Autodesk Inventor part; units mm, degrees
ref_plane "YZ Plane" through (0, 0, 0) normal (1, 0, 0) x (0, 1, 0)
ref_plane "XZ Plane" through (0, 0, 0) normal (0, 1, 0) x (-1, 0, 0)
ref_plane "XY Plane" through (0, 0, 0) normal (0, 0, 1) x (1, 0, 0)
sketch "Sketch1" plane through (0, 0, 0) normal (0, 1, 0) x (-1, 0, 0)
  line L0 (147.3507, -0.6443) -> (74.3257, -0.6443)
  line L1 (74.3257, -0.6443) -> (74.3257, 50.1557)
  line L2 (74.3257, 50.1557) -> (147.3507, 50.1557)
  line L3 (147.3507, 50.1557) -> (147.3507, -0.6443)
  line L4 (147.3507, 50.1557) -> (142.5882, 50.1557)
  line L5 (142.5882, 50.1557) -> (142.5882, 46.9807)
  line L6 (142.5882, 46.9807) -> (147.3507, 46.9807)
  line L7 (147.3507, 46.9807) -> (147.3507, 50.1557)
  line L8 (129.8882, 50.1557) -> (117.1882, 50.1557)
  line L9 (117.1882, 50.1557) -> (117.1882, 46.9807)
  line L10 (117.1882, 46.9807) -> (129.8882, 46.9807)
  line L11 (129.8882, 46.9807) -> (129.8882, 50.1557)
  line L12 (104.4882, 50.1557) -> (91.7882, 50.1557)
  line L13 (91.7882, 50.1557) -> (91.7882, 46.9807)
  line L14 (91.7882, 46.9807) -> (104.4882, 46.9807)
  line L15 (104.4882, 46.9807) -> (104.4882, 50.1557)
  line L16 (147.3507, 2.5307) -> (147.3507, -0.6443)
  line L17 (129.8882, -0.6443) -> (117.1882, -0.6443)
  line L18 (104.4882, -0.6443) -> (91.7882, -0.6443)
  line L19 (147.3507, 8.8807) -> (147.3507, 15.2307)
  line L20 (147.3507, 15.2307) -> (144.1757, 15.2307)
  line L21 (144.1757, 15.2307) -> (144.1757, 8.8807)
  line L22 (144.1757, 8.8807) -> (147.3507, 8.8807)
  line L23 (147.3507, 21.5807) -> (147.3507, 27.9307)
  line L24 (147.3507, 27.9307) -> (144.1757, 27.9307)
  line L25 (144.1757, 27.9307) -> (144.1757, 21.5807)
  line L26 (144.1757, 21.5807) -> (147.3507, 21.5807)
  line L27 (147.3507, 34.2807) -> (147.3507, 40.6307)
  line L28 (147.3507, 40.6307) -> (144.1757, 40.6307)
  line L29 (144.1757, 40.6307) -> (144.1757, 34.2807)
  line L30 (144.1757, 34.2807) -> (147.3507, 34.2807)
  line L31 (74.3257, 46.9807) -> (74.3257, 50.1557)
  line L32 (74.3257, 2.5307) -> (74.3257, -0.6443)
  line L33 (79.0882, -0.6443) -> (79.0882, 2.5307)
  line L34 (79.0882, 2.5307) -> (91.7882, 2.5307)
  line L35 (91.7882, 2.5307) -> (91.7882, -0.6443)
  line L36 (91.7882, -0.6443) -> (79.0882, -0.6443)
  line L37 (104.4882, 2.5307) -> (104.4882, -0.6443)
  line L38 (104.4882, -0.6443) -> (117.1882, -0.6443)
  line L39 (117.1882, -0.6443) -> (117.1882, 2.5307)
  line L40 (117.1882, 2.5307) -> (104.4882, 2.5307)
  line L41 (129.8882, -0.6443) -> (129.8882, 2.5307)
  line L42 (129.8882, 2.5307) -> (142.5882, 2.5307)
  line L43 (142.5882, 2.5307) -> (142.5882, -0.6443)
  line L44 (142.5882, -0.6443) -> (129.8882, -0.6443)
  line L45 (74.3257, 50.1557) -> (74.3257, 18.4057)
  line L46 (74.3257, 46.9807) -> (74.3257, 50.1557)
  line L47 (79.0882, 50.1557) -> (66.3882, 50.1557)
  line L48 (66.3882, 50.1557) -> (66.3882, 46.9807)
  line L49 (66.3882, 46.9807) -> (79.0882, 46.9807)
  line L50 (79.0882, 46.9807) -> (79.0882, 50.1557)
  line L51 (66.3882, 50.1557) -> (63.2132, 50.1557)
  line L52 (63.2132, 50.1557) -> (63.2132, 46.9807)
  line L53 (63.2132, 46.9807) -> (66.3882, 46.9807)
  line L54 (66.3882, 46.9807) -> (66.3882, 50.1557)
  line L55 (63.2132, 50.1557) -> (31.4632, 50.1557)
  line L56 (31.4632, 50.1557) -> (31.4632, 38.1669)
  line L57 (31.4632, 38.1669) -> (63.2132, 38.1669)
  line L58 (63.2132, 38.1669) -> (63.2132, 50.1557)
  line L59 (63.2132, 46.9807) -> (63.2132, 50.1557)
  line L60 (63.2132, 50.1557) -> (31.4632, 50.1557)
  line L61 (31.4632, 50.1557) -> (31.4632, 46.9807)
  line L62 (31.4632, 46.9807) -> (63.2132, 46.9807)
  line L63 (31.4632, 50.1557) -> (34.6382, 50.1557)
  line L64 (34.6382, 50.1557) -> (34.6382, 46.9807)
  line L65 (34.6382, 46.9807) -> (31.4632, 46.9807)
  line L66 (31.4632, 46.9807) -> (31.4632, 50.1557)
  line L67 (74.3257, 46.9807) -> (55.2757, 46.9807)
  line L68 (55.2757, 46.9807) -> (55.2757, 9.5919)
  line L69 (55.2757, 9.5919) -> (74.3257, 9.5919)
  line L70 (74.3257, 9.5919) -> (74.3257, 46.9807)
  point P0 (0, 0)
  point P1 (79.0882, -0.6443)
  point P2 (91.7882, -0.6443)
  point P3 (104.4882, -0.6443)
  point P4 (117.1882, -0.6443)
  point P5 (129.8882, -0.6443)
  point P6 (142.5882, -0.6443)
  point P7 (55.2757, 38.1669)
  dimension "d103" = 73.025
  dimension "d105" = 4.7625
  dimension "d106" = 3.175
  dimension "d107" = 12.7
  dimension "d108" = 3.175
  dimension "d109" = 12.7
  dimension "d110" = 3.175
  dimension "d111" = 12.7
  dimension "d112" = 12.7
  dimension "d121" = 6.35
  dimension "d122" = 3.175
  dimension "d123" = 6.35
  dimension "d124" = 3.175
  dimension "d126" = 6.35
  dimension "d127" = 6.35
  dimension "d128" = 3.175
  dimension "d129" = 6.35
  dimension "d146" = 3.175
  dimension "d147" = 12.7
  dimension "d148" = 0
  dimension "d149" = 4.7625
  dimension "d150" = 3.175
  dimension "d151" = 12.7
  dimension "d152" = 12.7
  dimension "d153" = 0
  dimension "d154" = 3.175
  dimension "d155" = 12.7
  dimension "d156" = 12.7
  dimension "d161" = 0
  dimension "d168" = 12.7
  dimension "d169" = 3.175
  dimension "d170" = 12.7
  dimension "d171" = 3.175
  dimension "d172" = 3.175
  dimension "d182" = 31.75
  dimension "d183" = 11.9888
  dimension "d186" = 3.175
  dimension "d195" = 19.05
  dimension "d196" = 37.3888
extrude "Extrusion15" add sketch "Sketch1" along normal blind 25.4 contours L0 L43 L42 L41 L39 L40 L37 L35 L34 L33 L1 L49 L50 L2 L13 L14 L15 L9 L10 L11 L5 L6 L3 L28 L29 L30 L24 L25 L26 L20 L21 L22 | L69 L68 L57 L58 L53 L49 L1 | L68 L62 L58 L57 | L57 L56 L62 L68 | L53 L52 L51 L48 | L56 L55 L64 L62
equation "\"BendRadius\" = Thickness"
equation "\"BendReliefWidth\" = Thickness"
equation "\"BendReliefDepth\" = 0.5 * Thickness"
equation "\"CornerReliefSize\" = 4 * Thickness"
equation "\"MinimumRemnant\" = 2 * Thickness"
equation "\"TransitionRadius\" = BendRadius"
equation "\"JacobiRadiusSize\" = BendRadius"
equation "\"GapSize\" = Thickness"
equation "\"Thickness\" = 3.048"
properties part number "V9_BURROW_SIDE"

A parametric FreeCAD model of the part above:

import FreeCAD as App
import Part
import Sketcher
Q = App.Units.Quantity

doc = App.newDocument("Part")
body = doc.addObject("PartDesign::Body", "Body")

sketch1 = body.newObject("Sketcher::SketchObject", "Sketch")
sketch1.AttachmentSupport = (doc.getObject("XZ_Plane"), [""])
sketch1.MapMode = "FlatFace"
sketch1.addGeometry([
    Part.LineSegment(App.Vector(-142.6, -0.6, 0), App.Vector(-147.4, -0.6, 0)),
    Part.LineSegment(App.Vector(-147.4, -0.6, 0), App.Vector(-147.4, 8.9, 0)),
    Part.LineSegment(App.Vector(-147.4, 8.9, 0), App.Vector(-144.2, 8.9, 0)),
    Part.LineSegment(App.Vector(-144.2, 8.9, 0), App.Vector(-144.2, 15.2, 0)),
    Part.LineSegment(App.Vector(-144.2, 15.2, 0), App.Vector(-147.4, 15.2, 0)),
    Part.LineSegment(App.Vector(-147.4, 15.2, 0), App.Vector(-147.4, 21.6, 0)),
    Part.LineSegment(App.Vector(-147.4, 21.6, 0), App.Vector(-144.2, 21.6, 0)),
    Part.LineSegment(App.Vector(-144.2, 21.6, 0), App.Vector(-144.2, 27.9, 0)),
    Part.LineSegment(App.Vector(-144.2, 27.9, 0), App.Vector(-147.4, 27.9, 0)),
    Part.LineSegment(App.Vector(-147.4, 27.9, 0), App.Vector(-147.4, 34.3, 0)),
    Part.LineSegment(App.Vector(-147.4, 34.3, 0), App.Vector(-144.2, 34.3, 0)),
    Part.LineSegment(App.Vector(-144.2, 34.3, 0), App.Vector(-144.2, 40.6, 0)),
    Part.LineSegment(App.Vector(-144.2, 40.6, 0), App.Vector(-147.4, 40.6, 0)),
    Part.LineSegment(App.Vector(-147.4, 40.6, 0), App.Vector(-147.4, 47, 0)),
    Part.LineSegment(App.Vector(-147.4, 47, 0), App.Vector(-142.6, 47, 0)),
    Part.LineSegment(App.Vector(-142.6, 47, 0), App.Vector(-142.6, 50.2, 0)),
    Part.LineSegment(App.Vector(-142.6, 50.2, 0), App.Vector(-129.9, 50.2, 0)),
    Part.LineSegment(App.Vector(-129.9, 50.2, 0), App.Vector(-129.9, 47, 0)),
    Part.LineSegment(App.Vector(-129.9, 47, 0), App.Vector(-117.2, 47, 0)),
    Part.LineSegment(App.Vector(-117.2, 47, 0), App.Vector(-117.2, 50.2, 0)),
    Part.LineSegment(App.Vector(-117.2, 50.2, 0), App.Vector(-104.5, 50.2, 0)),
    Part.LineSegment(App.Vector(-104.5, 50.2, 0), App.Vector(-104.5, 47, 0)),
    Part.LineSegment(App.Vector(-104.5, 47, 0), App.Vector(-91.8, 47, 0)),
    Part.LineSegment(App.Vector(-91.8, 47, 0), App.Vector(-91.8, 50.2, 0)),
    Part.LineSegment(App.Vector(-91.8, 50.2, 0), App.Vector(-79.1, 50.2, 0)),
    Part.LineSegment(App.Vector(-79.1, 50.2, 0), App.Vector(-79.1, 47, 0)),
    Part.LineSegment(App.Vector(-79.1, 47, 0), App.Vector(-66.4, 47, 0)),
    Part.LineSegment(App.Vector(-66.4, 47, 0), App.Vector(-66.4, 50.2, 0)),
    Part.LineSegment(App.Vector(-66.4, 50.2, 0), App.Vector(-63.2, 50.2, 0)),
    Part.LineSegment(App.Vector(-63.2, 50.2, 0), App.Vector(-63.2, 47, 0)),
    Part.LineSegment(App.Vector(-63.2, 47, 0), App.Vector(-34.6, 47, 0)),
    Part.LineSegment(App.Vector(-34.6, 47, 0), App.Vector(-34.6, 50.2, 0)),
    Part.LineSegment(App.Vector(-34.6, 50.2, 0), App.Vector(-31.5, 50.2, 0)),
    Part.LineSegment(App.Vector(-31.5, 50.2, 0), App.Vector(-31.5, 38.2, 0)),
    Part.LineSegment(App.Vector(-31.5, 38.2, 0), App.Vector(-55.3, 38.2, 0)),
    Part.LineSegment(App.Vector(-55.3, 38.2, 0), App.Vector(-55.3, 9.6, 0)),
    Part.LineSegment(App.Vector(-55.3, 9.6, 0), App.Vector(-74.3, 9.6, 0)),
    Part.LineSegment(App.Vector(-74.3, 9.6, 0), App.Vector(-74.3, -0.6, 0)),
    Part.LineSegment(App.Vector(-74.3, -0.6, 0), App.Vector(-79.1, -0.6, 0)),
    Part.LineSegment(App.Vector(-79.1, -0.6, 0), App.Vector(-79.1, 2.5, 0)),
    Part.LineSegment(App.Vector(-79.1, 2.5, 0), App.Vector(-91.8, 2.5, 0)),
    Part.LineSegment(App.Vector(-91.8, 2.5, 0), App.Vector(-91.8, -0.6, 0)),
    Part.LineSegment(App.Vector(-91.8, -0.6, 0), App.Vector(-104.5, -0.6, 0)),
    Part.LineSegment(App.Vector(-104.5, -0.6, 0), App.Vector(-104.5, 2.5, 0)),
    Part.LineSegment(App.Vector(-104.5, 2.5, 0), App.Vector(-117.2, 2.5, 0)),
    Part.LineSegment(App.Vector(-117.2, 2.5, 0), App.Vector(-117.2, -0.6, 0)),
    Part.LineSegment(App.Vector(-117.2, -0.6, 0), App.Vector(-129.9, -0.6, 0)),
    Part.LineSegment(App.Vector(-129.9, -0.6, 0), App.Vector(-129.9, 2.5, 0)),
    Part.LineSegment(App.Vector(-129.9, 2.5, 0), App.Vector(-142.6, 2.5, 0)),
    Part.LineSegment(App.Vector(-142.6, 2.5, 0), App.Vector(-142.6, -0.6, 0)),
], False)
sketch1.addConstraint([
    Sketcher.Constraint("Coincident", 0, 2, 1, 1),
    Sketcher.Constraint("Coincident", 1, 2, 2, 1),
    Sketcher.Constraint("Coincident", 2, 2, 3, 1),
    Sketcher.Constraint("Coincident", 3, 2, 4, 1),
    Sketcher.Constraint("Coincident", 4, 2, 5, 1),
    Sketcher.Constraint("Coincident", 5, 2, 6, 1),
    Sketcher.Constraint("Coincident", 6, 2, 7, 1),
    Sketcher.Constraint("Coincident", 7, 2, 8, 1),
    Sketcher.Constraint("Coincident", 8, 2, 9, 1),
    Sketcher.Constraint("Coincident", 9, 2, 10, 1),
    Sketcher.Constraint("Coincident", 10, 2, 11, 1),
    Sketcher.Constraint("Coincident", 11, 2, 12, 1),
    Sketcher.Constraint("Coincident", 12, 2, 13, 1),
    Sketcher.Constraint("Coincident", 13, 2, 14, 1),
    Sketcher.Constraint("Coincident", 14, 2, 15, 1),
    Sketcher.Constraint("Coincident", 15, 2, 16, 1),
    Sketcher.Constraint("Coincident", 16, 2, 17, 1),
    Sketcher.Constraint("Coincident", 17, 2, 18, 1),
    Sketcher.Constraint("Coincident", 18, 2, 19, 1),
    Sketcher.Constraint("Coincident", 19, 2, 20, 1),
    Sketcher.Constraint("Coincident", 20, 2, 21, 1),
    Sketcher.Constraint("Coincident", 21, 2, 22, 1),
    Sketcher.Constraint("Coincident", 22, 2, 23, 1),
    Sketcher.Constraint("Coincident", 23, 2, 24, 1),
    Sketcher.Constraint("Coincident", 24, 2, 25, 1),
    Sketcher.Constraint("Coincident", 25, 2, 26, 1),
    Sketcher.Constraint("Coincident", 26, 2, 27, 1),
    Sketcher.Constraint("Coincident", 27, 2, 28, 1),
    Sketcher.Constraint("Coincident", 28, 2, 29, 1),
    Sketcher.Constraint("Coincident", 29, 2, 30, 1),
    Sketcher.Constraint("Coincident", 30, 2, 31, 1),
    Sketcher.Constraint("Coincident", 31, 2, 32, 1),
    Sketcher.Constraint("Coincident", 32, 2, 33, 1),
    Sketcher.Constraint("Coincident", 33, 2, 34, 1),
    Sketcher.Constraint("Coincident", 34, 2, 35, 1),
    Sketcher.Constraint("Coincident", 35, 2, 36, 1),
    Sketcher.Constraint("Coincident", 36, 2, 37, 1),
    Sketcher.Constraint("Coincident", 37, 2, 38, 1),
    Sketcher.Constraint("Coincident", 38, 2, 39, 1),
    Sketcher.Constraint("Coincident", 39, 2, 40, 1),
    Sketcher.Constraint("Coincident", 40, 2, 41, 1),
    Sketcher.Constraint("Coincident", 41, 2, 42, 1),
    Sketcher.Constraint("Coincident", 42, 2, 43, 1),
    Sketcher.Constraint("Coincident", 43, 2, 44, 1),
    Sketcher.Constraint("Coincident", 44, 2, 45, 1),
    Sketcher.Constraint("Coincident", 45, 2, 46, 1),
    Sketcher.Constraint("Coincident", 46, 2, 47, 1),
    Sketcher.Constraint("Coincident", 47, 2, 48, 1),
    Sketcher.Constraint("Coincident", 48, 2, 49, 1),
    Sketcher.Constraint("Coincident", 49, 2, 0, 1),
    Sketcher.Constraint("Horizontal", 0),
    Sketcher.Constraint("Vertical", 1),
    Sketcher.Constraint("Horizontal", 2),
    Sketcher.Constraint("Vertical", 3),
    Sketcher.Constraint("Horizontal", 4),
    Sketcher.Constraint("Vertical", 5),
    Sketcher.Constraint("Horizontal", 6),
    Sketcher.Constraint("Vertical", 7),
    Sketcher.Constraint("Horizontal", 8),
    Sketcher.Constraint("Vertical", 9),
    Sketcher.Constraint("Horizontal", 10),
    Sketcher.Constraint("Vertical", 11),
    Sketcher.Constraint("Horizontal", 12),
    Sketcher.Constraint("Vertical", 13),
    Sketcher.Constraint("Horizontal", 14),
    Sketcher.Constraint("Vertical", 15),
    Sketcher.Constraint("Horizontal", 16),
    Sketcher.Constraint("Vertical", 17),
    Sketcher.Constraint("Horizontal", 18),
    Sketcher.Constraint("Vertical", 19),
    Sketcher.Constraint("Horizontal", 20),
    Sketcher.Constraint("Vertical", 21),
    Sketcher.Constraint("Horizontal", 22),
    Sketcher.Constraint("Vertical", 23),
    Sketcher.Constraint("Horizontal", 24),
    Sketcher.Constraint("Vertical", 25),
    Sketcher.Constraint("Horizontal", 26),
    Sketcher.Constraint("Vertical", 27),
    Sketcher.Constraint("Horizontal", 28),
    Sketcher.Constraint("Vertical", 29),
    Sketcher.Constraint("Horizontal", 30),
    Sketcher.Constraint("Vertical", 31),
    Sketcher.Constraint("Horizontal", 32),
    Sketcher.Constraint("Vertical", 33),
    Sketcher.Constraint("Horizontal", 34),
    Sketcher.Constraint("Vertical", 35),
    Sketcher.Constraint("Horizontal", 36),
    Sketcher.Constraint("Vertical", 37),
    Sketcher.Constraint("Horizontal", 38),
    Sketcher.Constraint("Vertical", 39),
    Sketcher.Constraint("Horizontal", 40),
    Sketcher.Constraint("Vertical", 41),
    Sketcher.Constraint("Horizontal", 42),
    Sketcher.Constraint("Vertical", 43),
    Sketcher.Constraint("Horizontal", 44),
    Sketcher.Constraint("Vertical", 45),
    Sketcher.Constraint("Horizontal", 46),
    Sketcher.Constraint("Vertical", 47),
    Sketcher.Constraint("Horizontal", 48),
    Sketcher.Constraint("Vertical", 49),
    Sketcher.Constraint("Horizontal", 14, 2, 17, 2),
    Sketcher.Constraint("Horizontal", 16, 2, 19, 2),
    Sketcher.Constraint("Horizontal", 18, 2, 21, 2),
    Sketcher.Constraint("Horizontal", 20, 2, 23, 2),
    Sketcher.Constraint("Horizontal", 22, 2, 25, 2),
    Sketcher.Constraint("Horizontal", 24, 2, 27, 2),
    Sketcher.Constraint("Horizontal", 26, 2, 29, 2),
    Sketcher.Constraint("Horizontal", 28, 2, 31, 2),
    Sketcher.Constraint("Horizontal", 0, 2, 37, 2),
    Sketcher.Constraint("Horizontal", 38, 2, 41, 2),
    Sketcher.Constraint("Horizontal", 40, 2, 43, 2),
    Sketcher.Constraint("Horizontal", 42, 2, 45, 2),
    Sketcher.Constraint("Horizontal", 44, 2, 47, 2),
    Sketcher.Constraint("Vertical", 1, 2, 4, 2),
    Sketcher.Constraint("Vertical", 3, 2, 6, 2),
    Sketcher.Constraint("Vertical", 5, 2, 8, 2),
    Sketcher.Constraint("Vertical", 7, 2, 10, 2),
    Sketcher.Constraint("Vertical", 9, 2, 12, 2),
    Sketcher.Constraint("Vertical", 25, 2, 38, 2),
    Sketcher.Constraint("Vertical", 23, 2, 40, 2),
    Sketcher.Constraint("Vertical", 21, 2, 42, 2),
    Sketcher.Constraint("Vertical", 19, 2, 44, 2),
    Sketcher.Constraint("Vertical", 17, 2, 46, 2),
    Sketcher.Constraint("Vertical", 15, 2, 48, 2),
    Sketcher.Constraint("Equal", 16, 18),
    Sketcher.Constraint("Equal", 18, 20),
    Sketcher.Constraint("Equal", 20, 22),
    Sketcher.Constraint("Equal", 22, 24),
    Sketcher.Constraint("Equal", 24, 26),
    Sketcher.Constraint("Equal", 12, 28),
    Sketcher.Constraint("Equal", 28, 32),
    Sketcher.Constraint("Equal", 14, 38),
    Sketcher.Constraint("Equal", 3, 5),
    Sketcher.Constraint("Equal", 5, 7),
    Sketcher.Constraint("Equal", 7, 9),
    Sketcher.Constraint("Equal", 9, 11),
    Sketcher.Constraint("Equal", 11, 13),
    Sketcher.Constraint("Equal", 32, 15),
    Sketcher.Constraint("Equal", 30, 35),
    Sketcher.Constraint("Equal", 31, 39),
    Sketcher.Constraint("DistanceX", 16, 1, 16, 2, Q("0.5 in")),
    Sketcher.Constraint("DistanceX", 36, 2, 36, 1, Q("0.75 in")),
    Sketcher.Constraint("DistanceY", 3, 1, 3, 2, Q("0.25 in")),
    Sketcher.Constraint("DistanceY", 48, 2, 3, 2, Q("0.5 in")),
    Sketcher.Constraint("DistanceX", 0, 2, 0, 1, Q("0.1875 in")),
    Sketcher.Constraint("DistanceX", 2, 1, 2, 2, Q("0.125 in")),
    Sketcher.Constraint("DistanceY", 33, 2, 33, 1, Q("0.472 in")),
    Sketcher.Constraint("DistanceX", 26, 2, 30, 2, Q("1.25 in")),
    Sketcher.Constraint("DistanceX", 0, 2, -1, 1, Q("5.8012 in")),
    Sketcher.Constraint("DistanceY", 0, 2, -1, 1, Q("0.6443 mm")),
])
pad1 = body.newObject("PartDesign::Pad", "Pad")
pad1.Profile = sketch1
pad1.Length = Q("1 in")
pad1.Reversed = True

doc.recompute()
